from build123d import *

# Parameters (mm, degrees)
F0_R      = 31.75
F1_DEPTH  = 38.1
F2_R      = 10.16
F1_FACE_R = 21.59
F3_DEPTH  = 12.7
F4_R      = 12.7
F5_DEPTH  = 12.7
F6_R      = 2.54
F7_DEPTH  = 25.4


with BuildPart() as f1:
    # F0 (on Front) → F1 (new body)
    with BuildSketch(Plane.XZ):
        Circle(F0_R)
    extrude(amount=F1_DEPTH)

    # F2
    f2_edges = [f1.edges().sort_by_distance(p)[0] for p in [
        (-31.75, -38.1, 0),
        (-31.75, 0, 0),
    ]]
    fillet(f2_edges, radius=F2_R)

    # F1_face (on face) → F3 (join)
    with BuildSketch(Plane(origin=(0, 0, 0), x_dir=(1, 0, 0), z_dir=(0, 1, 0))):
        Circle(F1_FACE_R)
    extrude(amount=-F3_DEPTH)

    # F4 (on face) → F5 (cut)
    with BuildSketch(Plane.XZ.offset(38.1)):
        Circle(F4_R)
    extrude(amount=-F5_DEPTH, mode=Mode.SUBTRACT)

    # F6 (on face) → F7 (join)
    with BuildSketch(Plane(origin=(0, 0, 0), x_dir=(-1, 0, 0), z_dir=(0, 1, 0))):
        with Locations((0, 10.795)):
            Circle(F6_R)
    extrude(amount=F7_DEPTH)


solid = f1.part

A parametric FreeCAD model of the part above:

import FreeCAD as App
import Part
import Sketcher
Q = App.Units.Quantity


def edges_at(feature, points):
    """Names of the edges that pass closest to the given points."""
    edges = feature.Shape.Edges
    near = lambda p: min(range(len(edges)), key=lambda i: edges[i].distToShape(Part.Vertex(*p))[0])
    return sorted({f"Edge{near(p) + 1}" for p in points})

doc = App.newDocument("Part")
params = doc.addObject("Spreadsheet::Sheet", "Params")
for row, (alias, value) in enumerate([
    ("sketch1_diameter", "2.5 in"),
    ("pad1_length", "1.5 in"),
    ("fillet_radius", "0.4 in"),
    ("sketch2_diameter", "1.7 in"),
    ("pad2_length", "0.5 in"),
    ("sketch3_diameter", "1 in"),
    ("pocket1_length", "0.5 in"),
    ("sketch4_diameter", "0.2 in"),
    ("pad3_length", "1 in"),
], start=1):
    params.set(f"A{row}", alias)
    params.set(f"B{row}", "=" + value)
    params.setAlias(f"B{row}", alias)

body = doc.addObject("PartDesign::Body", "Body")

# Sketch on XZ plane
sketch1 = body.newObject("Sketcher::SketchObject", "Sketch")
sketch1.AttachmentSupport = (doc.getObject("XZ_Plane"), [""])
sketch1.MapMode = "FlatFace"
sketch1.addGeometry(Part.Circle(App.Vector(0, 0, 0), App.Vector(0, 0, 1), 32), False)
sketch1.addConstraint([
    Sketcher.Constraint("Coincident", 0, 3, -1, 1),
    Sketcher.Constraint("Diameter", 0, Q("2.5 in")),
])
sketch1.setExpression("Constraints[1]", "Params.sketch1_diameter")
pad1 = body.newObject("PartDesign::Pad", "Pad")
pad1.Profile = sketch1
pad1.setExpression("Length", "Params.pad1_length")
doc.recompute()

fillet = body.newObject("PartDesign::Fillet", "Fillet")
fillet.Base = (pad1, edges_at(pad1, [(-31.75, -38.1, 0), (-31.75, 0, 0)]))
fillet.setExpression("Radius", "Params.fillet_radius")

# Sketch on XZ plane
sketch2 = body.newObject("Sketcher::SketchObject", "Sketch001")
sketch2.AttachmentSupport = (doc.getObject("XZ_Plane"), [""])
sketch2.MapMode = "FlatFace"
sketch2.addGeometry(Part.Circle(App.Vector(0, 0, 0), App.Vector(0, 0, 1), 22), False)
sketch2.addConstraint([
    Sketcher.Constraint("Coincident", 0, 3, -1, 1),
    Sketcher.Constraint("Diameter", 0, Q("1.7 in")),
])
sketch2.setExpression("Constraints[1]", "Params.sketch2_diameter")
pad2 = body.newObject("PartDesign::Pad", "Pad001")
pad2.Profile = sketch2
pad2.setExpression("Length", "Params.pad2_length")

# Sketch on XZ plane
sketch3 = body.newObject("Sketcher::SketchObject", "Sketch002")
sketch3.AttachmentSupport = (doc.getObject("XZ_Plane"), [""])
sketch3.MapMode = "FlatFace"
sketch3.AttachmentOffset = App.Placement(App.Vector(0, 0, 1.5 * 25.4), App.Rotation())
sketch3.addGeometry(Part.Circle(App.Vector(0, 0, 0), App.Vector(0, 0, 1), 13), False)
sketch3.addConstraint([
    Sketcher.Constraint("Coincident", 0, 3, -1, 1),
    Sketcher.Constraint("Diameter", 0, Q("1 in")),
])
sketch3.setExpression("Constraints[1]", "Params.sketch3_diameter")
pocket1 = body.newObject("PartDesign::Pocket", "Pocket")
pocket1.Profile = sketch3
pocket1.setExpression("Length", "Params.pocket1_length")

# Sketch on XZ plane
sketch4 = body.newObject("Sketcher::SketchObject", "Sketch003")
sketch4.AttachmentSupport = (doc.getObject("XZ_Plane"), [""])
sketch4.MapMode = "FlatFace"
sketch4.addGeometry(Part.Circle(App.Vector(0, 10.8, 0), App.Vector(0, 0, 1), 2.5), False)
sketch4.addConstraint([
    Sketcher.Constraint("PointOnObject", 0, 3, -2),
    Sketcher.Constraint("Diameter", 0, Q("0.2 in")),
    Sketcher.Constraint("DistanceY", -1, 1, 0, 3, Q("0.425 in")),
])
sketch4.setExpression("Constraints[1]", "Params.sketch4_diameter")
pad3 = body.newObject("PartDesign::Pad", "Pad002")
pad3.Profile = sketch4
pad3.setExpression("Length", "Params.pad3_length")
pad3.Reversed = True

doc.recompute()
